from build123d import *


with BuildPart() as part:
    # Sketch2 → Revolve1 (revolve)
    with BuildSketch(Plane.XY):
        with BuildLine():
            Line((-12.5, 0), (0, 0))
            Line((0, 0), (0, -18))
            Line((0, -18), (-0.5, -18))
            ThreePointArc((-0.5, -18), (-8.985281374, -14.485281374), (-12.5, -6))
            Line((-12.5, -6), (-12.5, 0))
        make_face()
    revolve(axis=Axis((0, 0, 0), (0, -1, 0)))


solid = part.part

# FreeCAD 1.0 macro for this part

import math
import FreeCAD as App
import Part
import Sketcher

V = App.Vector
Q = App.Units.Quantity

doc = App.newDocument("Part")
params = doc.addObject("Spreadsheet::Sheet", "Params")
for row, (alias, value) in enumerate([
    ("sketch1_radius", "12 mm"),
    ("sketch1_height", "6 mm"),
    ("sketch1_width", "12.5 mm"),
    ("revolution_angle", "360 deg"),
], start=1):
    params.set(f"A{row}", alias)
    params.set(f"B{row}", "=" + value)
    params.setAlias(f"B{row}", alias)

body = doc.addObject("PartDesign::Body", "Body")

# Sketch on XY plane
sketch1 = body.newObject("Sketcher::SketchObject", "Sketch")
sketch1.AttachmentSupport = (doc.getObject("XY_Plane"), [""])
sketch1.MapMode = "FlatFace"
sketch1.addGeometry([
    Part.LineSegment(V(0, 0, 0), V(-12.5, 0, 0)),  # 0
    Part.LineSegment(V(-12.5, 0, 0), V(-12.5, -6, 0)),  # 1
    Part.ArcOfCircle(Part.Circle(V(-0.5, -6, 0), V(0, 0, 1), 12), math.radians(-180), math.radians(-90)),  # 2
    Part.LineSegment(V(-0.5, -18, 0), V(0, -18, 0)),  # 3
    Part.LineSegment(V(0, -18, 0), V(0, 0, 0)),  # 4
], False)
sketch1.addConstraint([
    Sketcher.Constraint("Coincident", 0, 2, 1, 1),
    Sketcher.Constraint("Tangent", 1, 2, 2, 1),
    Sketcher.Constraint("Tangent", 2, 2, 3, 1),
    Sketcher.Constraint("Coincident", 3, 2, 4, 1),
    Sketcher.Constraint("Coincident", 4, 2, 0, 1),
    Sketcher.Constraint("Horizontal", 0),
    Sketcher.Constraint("Vertical", 1),
    Sketcher.Constraint("Horizontal", 3),
    Sketcher.Constraint("Vertical", 4),
    Sketcher.Constraint("Coincident", 4, 2, -1, 1),
    Sketcher.Constraint("Radius", 2, Q("12 mm")),
    Sketcher.Constraint("DistanceY", 1, 2, 1, 1, Q("6 mm")),
    Sketcher.Constraint("DistanceX", 0, 2, 0, 1, Q("12.5 mm")),
])
sketch1.setExpression("Constraints[10]", "Params.sketch1_radius")
sketch1.setExpression("Constraints[11]", "Params.sketch1_height")
sketch1.setExpression("Constraints[12]", "Params.sketch1_width")
revolution = body.newObject("PartDesign::Revolution", "Revolution")
revolution.Profile = sketch1
revolution.ReferenceAxis = (sketch1, ["V_Axis"])
revolution.setExpression("Angle", "Params.revolution_angle")

doc.recompute()
